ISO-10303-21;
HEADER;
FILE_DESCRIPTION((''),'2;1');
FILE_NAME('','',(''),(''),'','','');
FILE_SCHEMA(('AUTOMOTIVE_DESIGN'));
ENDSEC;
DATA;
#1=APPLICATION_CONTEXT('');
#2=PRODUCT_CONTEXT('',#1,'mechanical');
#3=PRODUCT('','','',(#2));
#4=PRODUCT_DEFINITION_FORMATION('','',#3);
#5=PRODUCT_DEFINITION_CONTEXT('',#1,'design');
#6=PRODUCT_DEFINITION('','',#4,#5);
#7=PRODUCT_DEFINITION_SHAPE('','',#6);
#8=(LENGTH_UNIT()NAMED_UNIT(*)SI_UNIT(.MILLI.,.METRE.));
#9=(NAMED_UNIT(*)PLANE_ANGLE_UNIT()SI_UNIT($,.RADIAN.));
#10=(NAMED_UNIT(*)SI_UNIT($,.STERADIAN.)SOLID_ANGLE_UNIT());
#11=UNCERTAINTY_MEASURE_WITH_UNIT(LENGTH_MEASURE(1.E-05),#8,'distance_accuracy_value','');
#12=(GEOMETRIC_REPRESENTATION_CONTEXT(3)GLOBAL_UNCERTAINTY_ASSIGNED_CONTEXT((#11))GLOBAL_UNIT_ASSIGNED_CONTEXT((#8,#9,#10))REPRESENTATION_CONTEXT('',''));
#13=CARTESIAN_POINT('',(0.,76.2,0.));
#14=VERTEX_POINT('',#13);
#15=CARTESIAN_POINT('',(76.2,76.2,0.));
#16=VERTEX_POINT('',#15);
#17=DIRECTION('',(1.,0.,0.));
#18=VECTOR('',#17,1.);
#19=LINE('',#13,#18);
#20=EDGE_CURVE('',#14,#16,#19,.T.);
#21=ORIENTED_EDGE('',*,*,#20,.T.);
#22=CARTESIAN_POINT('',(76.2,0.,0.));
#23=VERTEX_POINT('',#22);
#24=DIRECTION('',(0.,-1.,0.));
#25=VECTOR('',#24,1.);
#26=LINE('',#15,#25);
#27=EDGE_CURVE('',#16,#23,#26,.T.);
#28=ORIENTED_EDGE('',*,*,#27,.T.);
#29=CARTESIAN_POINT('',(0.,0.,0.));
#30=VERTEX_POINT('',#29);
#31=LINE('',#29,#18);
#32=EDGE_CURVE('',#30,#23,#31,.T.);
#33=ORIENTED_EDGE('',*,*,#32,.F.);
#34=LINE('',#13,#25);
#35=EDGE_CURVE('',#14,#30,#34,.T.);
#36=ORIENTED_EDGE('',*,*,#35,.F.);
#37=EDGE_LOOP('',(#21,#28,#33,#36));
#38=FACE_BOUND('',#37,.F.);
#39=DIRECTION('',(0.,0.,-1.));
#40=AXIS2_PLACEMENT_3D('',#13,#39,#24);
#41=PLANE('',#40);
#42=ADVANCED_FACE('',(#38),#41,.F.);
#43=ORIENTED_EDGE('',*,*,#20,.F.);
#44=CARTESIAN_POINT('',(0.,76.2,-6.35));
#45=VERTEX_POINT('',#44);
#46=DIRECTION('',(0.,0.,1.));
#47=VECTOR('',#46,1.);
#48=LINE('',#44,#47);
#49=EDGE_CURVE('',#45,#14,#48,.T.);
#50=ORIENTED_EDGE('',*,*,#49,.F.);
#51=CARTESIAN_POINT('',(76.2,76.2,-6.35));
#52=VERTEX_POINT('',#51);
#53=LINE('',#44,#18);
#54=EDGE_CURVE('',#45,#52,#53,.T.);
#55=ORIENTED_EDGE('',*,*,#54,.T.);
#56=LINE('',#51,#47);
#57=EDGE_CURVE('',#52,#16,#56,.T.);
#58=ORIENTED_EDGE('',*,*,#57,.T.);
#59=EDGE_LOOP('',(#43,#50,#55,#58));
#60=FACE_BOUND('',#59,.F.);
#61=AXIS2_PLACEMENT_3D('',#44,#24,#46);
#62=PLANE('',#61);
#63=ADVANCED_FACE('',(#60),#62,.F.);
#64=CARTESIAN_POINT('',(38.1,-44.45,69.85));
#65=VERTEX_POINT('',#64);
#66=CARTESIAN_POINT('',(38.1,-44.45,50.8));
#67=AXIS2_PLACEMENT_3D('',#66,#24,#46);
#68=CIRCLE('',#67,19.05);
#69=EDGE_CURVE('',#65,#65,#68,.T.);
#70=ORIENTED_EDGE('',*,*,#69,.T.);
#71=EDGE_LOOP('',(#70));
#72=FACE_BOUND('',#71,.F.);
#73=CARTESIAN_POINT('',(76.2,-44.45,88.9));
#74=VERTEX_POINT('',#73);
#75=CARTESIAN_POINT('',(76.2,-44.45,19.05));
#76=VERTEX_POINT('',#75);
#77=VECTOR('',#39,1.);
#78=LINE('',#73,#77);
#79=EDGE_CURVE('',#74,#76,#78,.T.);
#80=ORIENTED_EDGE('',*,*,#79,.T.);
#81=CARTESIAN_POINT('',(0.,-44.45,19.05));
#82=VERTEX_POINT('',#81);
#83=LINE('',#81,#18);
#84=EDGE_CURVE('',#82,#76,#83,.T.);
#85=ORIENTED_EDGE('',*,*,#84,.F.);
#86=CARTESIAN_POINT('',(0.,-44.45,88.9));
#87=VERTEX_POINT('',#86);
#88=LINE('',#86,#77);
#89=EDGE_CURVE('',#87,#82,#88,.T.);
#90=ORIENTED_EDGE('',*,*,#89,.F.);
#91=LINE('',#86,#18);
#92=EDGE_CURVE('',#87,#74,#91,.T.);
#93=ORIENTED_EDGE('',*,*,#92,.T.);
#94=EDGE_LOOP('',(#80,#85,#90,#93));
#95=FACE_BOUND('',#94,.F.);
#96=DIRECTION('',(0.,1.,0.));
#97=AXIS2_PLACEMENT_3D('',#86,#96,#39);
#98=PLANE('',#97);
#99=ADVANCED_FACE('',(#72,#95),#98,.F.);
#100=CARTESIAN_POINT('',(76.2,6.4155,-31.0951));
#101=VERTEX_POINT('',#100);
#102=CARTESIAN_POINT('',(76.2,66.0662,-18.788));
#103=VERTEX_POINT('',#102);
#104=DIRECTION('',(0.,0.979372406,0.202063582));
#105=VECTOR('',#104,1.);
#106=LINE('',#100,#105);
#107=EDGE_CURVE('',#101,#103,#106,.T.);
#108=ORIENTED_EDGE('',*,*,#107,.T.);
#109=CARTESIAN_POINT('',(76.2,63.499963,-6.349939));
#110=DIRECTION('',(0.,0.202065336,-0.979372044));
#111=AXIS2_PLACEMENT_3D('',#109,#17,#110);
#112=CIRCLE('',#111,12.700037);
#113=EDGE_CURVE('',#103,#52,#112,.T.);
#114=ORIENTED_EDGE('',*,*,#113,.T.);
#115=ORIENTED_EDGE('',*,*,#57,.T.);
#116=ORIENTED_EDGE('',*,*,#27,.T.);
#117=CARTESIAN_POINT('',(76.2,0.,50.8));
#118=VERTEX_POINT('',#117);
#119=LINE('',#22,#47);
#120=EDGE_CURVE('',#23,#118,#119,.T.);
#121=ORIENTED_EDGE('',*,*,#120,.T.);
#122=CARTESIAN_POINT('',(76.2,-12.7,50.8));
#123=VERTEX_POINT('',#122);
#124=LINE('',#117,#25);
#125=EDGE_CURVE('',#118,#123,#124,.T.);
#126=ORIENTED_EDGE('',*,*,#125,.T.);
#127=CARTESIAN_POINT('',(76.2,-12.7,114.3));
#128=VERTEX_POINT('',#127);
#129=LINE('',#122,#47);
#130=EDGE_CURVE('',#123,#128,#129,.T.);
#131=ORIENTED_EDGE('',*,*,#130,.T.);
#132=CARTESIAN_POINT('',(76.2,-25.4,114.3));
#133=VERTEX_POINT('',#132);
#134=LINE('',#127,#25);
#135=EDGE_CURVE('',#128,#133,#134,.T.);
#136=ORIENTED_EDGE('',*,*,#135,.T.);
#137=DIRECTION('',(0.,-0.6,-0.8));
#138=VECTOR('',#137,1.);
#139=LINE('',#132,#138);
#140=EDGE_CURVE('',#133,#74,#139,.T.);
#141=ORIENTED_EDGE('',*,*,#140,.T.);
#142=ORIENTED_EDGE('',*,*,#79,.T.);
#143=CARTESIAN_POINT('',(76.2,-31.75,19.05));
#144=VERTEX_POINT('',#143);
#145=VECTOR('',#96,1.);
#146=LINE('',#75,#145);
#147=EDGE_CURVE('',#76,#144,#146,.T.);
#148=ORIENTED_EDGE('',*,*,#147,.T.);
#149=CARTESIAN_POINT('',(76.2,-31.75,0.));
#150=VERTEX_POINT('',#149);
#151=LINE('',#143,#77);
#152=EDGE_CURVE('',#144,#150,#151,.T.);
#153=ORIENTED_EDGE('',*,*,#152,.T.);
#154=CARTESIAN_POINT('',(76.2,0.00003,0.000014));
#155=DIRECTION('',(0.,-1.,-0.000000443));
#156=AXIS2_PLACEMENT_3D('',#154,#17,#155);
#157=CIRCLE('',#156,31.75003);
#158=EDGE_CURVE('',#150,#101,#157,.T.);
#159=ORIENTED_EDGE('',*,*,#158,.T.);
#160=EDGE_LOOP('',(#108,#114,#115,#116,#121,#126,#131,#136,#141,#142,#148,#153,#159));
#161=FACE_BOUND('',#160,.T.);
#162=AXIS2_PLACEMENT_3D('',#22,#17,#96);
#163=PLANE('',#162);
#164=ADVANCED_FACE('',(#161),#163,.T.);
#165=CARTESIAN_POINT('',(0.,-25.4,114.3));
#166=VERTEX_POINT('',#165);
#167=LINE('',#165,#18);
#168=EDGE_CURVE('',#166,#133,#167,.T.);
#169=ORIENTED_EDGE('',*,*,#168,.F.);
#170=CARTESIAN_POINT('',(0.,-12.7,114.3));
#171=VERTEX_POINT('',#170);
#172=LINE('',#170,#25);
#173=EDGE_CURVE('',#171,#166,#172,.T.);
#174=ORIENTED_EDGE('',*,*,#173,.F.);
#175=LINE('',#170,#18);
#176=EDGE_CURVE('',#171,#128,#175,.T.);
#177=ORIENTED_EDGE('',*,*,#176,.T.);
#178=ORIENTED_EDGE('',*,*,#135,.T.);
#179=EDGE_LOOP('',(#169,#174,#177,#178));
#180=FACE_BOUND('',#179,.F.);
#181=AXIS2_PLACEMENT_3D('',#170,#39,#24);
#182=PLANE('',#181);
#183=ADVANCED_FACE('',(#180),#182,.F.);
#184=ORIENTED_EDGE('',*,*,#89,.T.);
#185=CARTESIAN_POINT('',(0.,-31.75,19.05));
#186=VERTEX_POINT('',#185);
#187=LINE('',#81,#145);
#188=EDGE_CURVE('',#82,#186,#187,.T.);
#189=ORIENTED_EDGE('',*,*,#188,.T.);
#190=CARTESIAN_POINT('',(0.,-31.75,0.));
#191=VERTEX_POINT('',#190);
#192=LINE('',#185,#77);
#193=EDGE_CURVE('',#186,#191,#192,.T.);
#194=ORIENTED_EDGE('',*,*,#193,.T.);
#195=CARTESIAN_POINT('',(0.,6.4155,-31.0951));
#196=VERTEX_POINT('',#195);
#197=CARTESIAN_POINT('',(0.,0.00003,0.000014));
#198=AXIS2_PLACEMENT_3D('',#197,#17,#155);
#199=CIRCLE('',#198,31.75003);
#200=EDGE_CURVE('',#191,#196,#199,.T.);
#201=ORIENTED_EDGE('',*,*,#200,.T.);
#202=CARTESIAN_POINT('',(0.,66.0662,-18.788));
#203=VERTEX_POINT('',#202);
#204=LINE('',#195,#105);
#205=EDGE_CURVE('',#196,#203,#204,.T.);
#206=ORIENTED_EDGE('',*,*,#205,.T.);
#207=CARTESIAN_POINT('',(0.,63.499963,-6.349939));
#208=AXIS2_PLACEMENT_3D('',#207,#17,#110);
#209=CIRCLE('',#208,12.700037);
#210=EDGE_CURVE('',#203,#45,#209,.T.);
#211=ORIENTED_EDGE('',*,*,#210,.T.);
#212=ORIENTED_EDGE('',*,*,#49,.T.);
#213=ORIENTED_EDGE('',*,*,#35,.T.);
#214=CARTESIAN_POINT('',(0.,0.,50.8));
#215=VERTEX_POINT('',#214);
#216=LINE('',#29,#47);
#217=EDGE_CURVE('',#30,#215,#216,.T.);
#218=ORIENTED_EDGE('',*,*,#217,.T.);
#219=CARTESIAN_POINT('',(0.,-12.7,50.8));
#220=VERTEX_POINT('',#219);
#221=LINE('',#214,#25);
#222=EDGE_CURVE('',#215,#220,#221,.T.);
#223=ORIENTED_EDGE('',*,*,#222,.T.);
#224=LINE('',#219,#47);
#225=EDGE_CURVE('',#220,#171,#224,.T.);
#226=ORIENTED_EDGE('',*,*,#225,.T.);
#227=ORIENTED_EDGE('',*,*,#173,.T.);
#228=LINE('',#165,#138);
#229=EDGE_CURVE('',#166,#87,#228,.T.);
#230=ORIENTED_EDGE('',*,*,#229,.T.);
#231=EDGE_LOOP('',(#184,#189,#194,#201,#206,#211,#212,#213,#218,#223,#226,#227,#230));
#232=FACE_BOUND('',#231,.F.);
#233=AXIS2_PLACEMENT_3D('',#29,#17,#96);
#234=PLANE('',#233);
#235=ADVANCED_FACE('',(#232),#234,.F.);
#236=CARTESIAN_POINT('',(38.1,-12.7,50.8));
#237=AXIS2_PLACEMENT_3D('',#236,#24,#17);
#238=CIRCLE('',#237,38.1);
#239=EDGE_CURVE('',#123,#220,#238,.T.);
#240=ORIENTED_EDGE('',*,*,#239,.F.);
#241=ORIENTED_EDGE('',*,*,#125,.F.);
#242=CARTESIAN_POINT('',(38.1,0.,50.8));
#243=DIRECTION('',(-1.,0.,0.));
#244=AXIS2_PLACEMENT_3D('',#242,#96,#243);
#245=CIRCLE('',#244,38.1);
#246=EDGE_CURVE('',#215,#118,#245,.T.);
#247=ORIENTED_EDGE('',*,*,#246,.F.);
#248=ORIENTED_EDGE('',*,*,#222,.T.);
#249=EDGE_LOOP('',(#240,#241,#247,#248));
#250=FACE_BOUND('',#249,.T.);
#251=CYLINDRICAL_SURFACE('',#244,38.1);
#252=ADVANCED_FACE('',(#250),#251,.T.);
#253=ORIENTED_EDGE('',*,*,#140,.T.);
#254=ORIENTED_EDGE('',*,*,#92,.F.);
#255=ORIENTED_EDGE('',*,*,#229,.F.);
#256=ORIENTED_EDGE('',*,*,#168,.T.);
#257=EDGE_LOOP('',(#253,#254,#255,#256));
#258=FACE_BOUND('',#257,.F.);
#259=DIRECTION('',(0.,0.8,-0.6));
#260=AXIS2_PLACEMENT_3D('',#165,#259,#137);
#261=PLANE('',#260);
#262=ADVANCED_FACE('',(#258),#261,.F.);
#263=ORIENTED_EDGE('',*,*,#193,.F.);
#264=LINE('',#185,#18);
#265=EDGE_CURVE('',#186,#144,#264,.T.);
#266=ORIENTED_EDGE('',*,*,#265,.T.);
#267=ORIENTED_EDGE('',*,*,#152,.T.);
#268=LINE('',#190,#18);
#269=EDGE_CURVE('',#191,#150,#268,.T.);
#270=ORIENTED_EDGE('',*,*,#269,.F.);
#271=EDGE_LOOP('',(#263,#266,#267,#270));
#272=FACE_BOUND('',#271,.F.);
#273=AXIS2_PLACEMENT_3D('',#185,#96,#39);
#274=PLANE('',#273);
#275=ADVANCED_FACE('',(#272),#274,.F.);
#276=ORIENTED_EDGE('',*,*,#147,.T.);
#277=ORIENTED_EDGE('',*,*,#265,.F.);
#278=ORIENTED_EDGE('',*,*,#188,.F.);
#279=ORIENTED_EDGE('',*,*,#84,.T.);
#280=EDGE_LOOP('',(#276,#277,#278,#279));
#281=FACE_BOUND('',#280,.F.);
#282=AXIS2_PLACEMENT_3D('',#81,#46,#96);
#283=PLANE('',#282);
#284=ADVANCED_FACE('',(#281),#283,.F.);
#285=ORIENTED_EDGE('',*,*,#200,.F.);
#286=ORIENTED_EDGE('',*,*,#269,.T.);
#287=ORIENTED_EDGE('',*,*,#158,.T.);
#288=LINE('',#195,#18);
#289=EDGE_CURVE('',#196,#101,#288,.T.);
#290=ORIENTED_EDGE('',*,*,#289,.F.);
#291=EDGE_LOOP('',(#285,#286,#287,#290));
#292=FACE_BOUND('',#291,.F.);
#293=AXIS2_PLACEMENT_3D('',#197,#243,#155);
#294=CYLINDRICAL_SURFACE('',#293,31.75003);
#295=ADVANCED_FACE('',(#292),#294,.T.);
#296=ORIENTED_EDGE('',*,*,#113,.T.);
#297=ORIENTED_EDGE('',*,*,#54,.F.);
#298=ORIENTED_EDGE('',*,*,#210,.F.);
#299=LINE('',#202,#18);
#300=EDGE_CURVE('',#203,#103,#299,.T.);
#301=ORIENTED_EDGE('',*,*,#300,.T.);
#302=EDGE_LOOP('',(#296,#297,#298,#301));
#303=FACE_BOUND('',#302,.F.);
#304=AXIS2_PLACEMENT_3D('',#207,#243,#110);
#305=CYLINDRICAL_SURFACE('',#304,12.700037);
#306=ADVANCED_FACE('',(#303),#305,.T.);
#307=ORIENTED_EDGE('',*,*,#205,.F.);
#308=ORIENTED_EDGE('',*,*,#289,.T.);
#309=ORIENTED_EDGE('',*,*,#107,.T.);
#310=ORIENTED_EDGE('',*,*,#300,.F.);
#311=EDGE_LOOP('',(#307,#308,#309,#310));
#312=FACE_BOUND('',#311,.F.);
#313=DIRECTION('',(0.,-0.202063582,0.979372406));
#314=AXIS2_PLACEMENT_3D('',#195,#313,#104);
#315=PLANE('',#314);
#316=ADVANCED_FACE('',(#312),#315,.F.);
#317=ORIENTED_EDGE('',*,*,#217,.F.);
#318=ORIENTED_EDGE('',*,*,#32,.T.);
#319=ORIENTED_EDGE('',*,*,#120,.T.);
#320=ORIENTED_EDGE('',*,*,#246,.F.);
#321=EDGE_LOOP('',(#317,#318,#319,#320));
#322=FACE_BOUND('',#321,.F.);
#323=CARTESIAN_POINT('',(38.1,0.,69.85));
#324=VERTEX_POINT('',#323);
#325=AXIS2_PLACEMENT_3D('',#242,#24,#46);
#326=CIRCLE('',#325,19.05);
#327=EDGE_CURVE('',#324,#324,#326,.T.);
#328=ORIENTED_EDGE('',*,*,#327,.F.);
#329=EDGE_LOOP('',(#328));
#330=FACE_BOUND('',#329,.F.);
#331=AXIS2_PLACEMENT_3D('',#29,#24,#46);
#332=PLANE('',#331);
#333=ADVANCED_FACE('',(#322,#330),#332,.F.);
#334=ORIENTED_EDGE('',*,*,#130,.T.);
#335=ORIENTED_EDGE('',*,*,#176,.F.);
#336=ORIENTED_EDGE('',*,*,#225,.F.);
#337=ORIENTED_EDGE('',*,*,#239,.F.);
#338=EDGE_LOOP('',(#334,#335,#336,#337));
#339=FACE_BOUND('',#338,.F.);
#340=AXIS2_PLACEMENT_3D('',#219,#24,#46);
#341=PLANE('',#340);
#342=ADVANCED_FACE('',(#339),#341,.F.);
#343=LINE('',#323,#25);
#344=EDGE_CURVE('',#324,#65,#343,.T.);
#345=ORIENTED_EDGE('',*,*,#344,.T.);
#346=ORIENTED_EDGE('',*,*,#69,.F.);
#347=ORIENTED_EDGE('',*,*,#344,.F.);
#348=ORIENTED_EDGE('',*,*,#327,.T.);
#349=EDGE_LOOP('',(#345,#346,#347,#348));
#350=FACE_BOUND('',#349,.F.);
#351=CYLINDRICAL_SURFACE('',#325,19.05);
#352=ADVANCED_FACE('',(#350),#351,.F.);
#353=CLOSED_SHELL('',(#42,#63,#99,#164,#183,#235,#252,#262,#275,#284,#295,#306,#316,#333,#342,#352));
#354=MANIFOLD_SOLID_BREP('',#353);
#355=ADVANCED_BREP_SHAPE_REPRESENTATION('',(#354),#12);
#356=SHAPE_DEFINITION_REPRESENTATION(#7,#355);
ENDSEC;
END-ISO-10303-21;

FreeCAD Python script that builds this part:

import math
import FreeCAD as App
import Part
import Sketcher
Q = App.Units.Quantity

doc = App.newDocument("Part")
body = doc.addObject("PartDesign::Body", "Body")

# Sketch on YZ plane
sketch1 = body.newObject("Sketcher::SketchObject", "Sketch")
sketch1.AttachmentSupport = (doc.getObject("YZ_Plane"), [""])
sketch1.MapMode = "FlatFace"
sketch1.addGeometry([
    Part.LineSegment(App.Vector(76.2, -6.35, 0), App.Vector(76.2, 0, 0)),  # 0
    Part.LineSegment(App.Vector(76.2, 0, 0), App.Vector(0, 0, 0)),  # 1
    Part.LineSegment(App.Vector(0, 0, 0), App.Vector(0, 50.8, 0)),  # 2
    Part.LineSegment(App.Vector(0, 50.8, 0), App.Vector(-12.7, 50.8, 0)),  # 3
    Part.LineSegment(App.Vector(-12.7, 50.8, 0), App.Vector(-12.7, 114.3, 0)),  # 4
    Part.LineSegment(App.Vector(-12.7, 114.3, 0), App.Vector(-25.4, 114.3, 0)),  # 5
    Part.LineSegment(App.Vector(-25.4, 114.3, 0), App.Vector(-44.45, 88.9, 0)),  # 6
    Part.LineSegment(App.Vector(-44.45, 88.9, 0), App.Vector(-44.45, 19.05, 0)),  # 7
    Part.LineSegment(App.Vector(-44.45, 19.05, 0), App.Vector(-31.75, 19.05, 0)),  # 8
    Part.LineSegment(App.Vector(-31.75, 19.05, 0), App.Vector(-31.75, 0, 0)),  # 9
    Part.ArcOfCircle(Part.Circle(App.Vector(0, 0, 0), App.Vector(0, 0, 1), 31.75), math.radians(180), math.radians(281.657615)),  # 10
    Part.LineSegment(App.Vector(6.4155, -31.0951, 0), App.Vector(66.0662, -18.788, 0)),  # 11
    Part.ArcOfCircle(Part.Circle(App.Vector(63.5, -6.35, 0), App.Vector(0, 0, 1), 12.69997), math.radians(-78.342348), math.radians(0)),  # 12
], False)
sketch1.addConstraint([
    Sketcher.Constraint("Coincident", 0, 2, 1, 1),
    Sketcher.Constraint("Coincident", 1, 2, 2, 1),
    Sketcher.Constraint("Coincident", 2, 2, 3, 1),
    Sketcher.Constraint("Coincident", 3, 2, 4, 1),
    Sketcher.Constraint("Coincident", 4, 2, 5, 1),
    Sketcher.Constraint("Coincident", 5, 2, 6, 1),
    Sketcher.Constraint("Coincident", 6, 2, 7, 1),
    Sketcher.Constraint("Coincident", 7, 2, 8, 1),
    Sketcher.Constraint("Coincident", 8, 2, 9, 1),
    Sketcher.Constraint("Tangent", 9, 2, 10, 1),
    Sketcher.Constraint("Tangent", 10, 2, 11, 1),
    Sketcher.Constraint("Tangent", 11, 2, 12, 1),
    Sketcher.Constraint("Tangent", 12, 2, 0, 1),
    Sketcher.Constraint("Vertical", 0),
    Sketcher.Constraint("Horizontal", 1),
    Sketcher.Constraint("Vertical", 2),
    Sketcher.Constraint("Horizontal", 3),
    Sketcher.Constraint("Vertical", 4),
    Sketcher.Constraint("Horizontal", 5),
    Sketcher.Constraint("Vertical", 7),
    Sketcher.Constraint("Horizontal", 8),
    Sketcher.Constraint("Vertical", 9),
    Sketcher.Constraint("Coincident", 10, 3, -1, 1),
    Sketcher.Constraint("Coincident", 1, 2, -1, 1),
    Sketcher.Constraint("Equal", 3, 5),
    Sketcher.Constraint("Equal", 5, 8),
    Sketcher.Constraint("Radius", 12, Q("0.5 in")),
    Sketcher.Constraint("DistanceX", 1, 2, 1, 1, Q("3 in")),
    Sketcher.Constraint("DistanceY", 2, 1, 2, 2, Q("2 in")),
    Sketcher.Constraint("Radius", 10, Q("1.25 in")),
    Sketcher.Constraint("DistanceX", 3, 2, 3, 1, Q("0.5 in")),
    Sketcher.Constraint("DistanceY", 0, 1, 0, 2, Q("0.25 in")),
    Sketcher.Constraint("DistanceY", 7, 2, 7, 1, Q("2.75 in")),
    Sketcher.Constraint("DistanceY", 9, 2, 9, 1, Q("0.75 in")),
    Sketcher.Constraint("DistanceY", -1, 1, 4, 2, Q("4.5 in")),
])
pad1 = body.newObject("PartDesign::Pad", "Pad")
pad1.Profile = sketch1
pad1.Length = Q("3 in")

# Sketch on XZ plane
sketch2 = body.newObject("Sketcher::SketchObject", "Sketch001")
sketch2.AttachmentSupport = (doc.getObject("XZ_Plane"), [""])
sketch2.MapMode = "FlatFace"
sketch2.addGeometry([
    Part.LineSegment(App.Vector(76.2, 50.8, 0), App.Vector(0, 50.8, 0)),
    Part.ArcOfCircle(Part.Circle(App.Vector(38.1, 50.8, 0), App.Vector(0, 0, 1), 38.1), math.radians(0), math.radians(180)),
], False)
sketch2.addConstraint([
    Sketcher.Constraint("Coincident", 0, 1, 1, 1),
    Sketcher.Constraint("Coincident", 1, 2, 0, 2),
    Sketcher.Constraint("Horizontal", 0),
    Sketcher.Constraint("PointOnObject", 1, 2, -2),
    Sketcher.Constraint("Horizontal", 1, 3, 0, 1),
    Sketcher.Constraint("Radius", 1, Q("1.5 in")),
    Sketcher.Constraint("DistanceY", -1, 1, 1, 3, Q("2 in")),
])
pad2 = body.newObject("PartDesign::Pad", "Pad001")
pad2.Profile = sketch2
pad2.Length = Q("0.5 in")

# Sketch on XZ plane
sketch3 = body.newObject("Sketcher::SketchObject", "Sketch002")
sketch3.AttachmentSupport = (doc.getObject("XZ_Plane"), [""])
sketch3.MapMode = "FlatFace"
sketch3.addGeometry(Part.Circle(App.Vector(38.1, 50.8, 0), App.Vector(0, 0, 1), 19.05), False)
sketch3.addConstraint([
    Sketcher.Constraint("Diameter", 0, Q("1.5 in")),
    Sketcher.Constraint("DistanceY", -1, 1, 0, 3, Q("2 in")),
    Sketcher.Constraint("DistanceX", -1, 1, 0, 3, Q("1.5 in")),
])
doc.recompute()
hole = body.newObject("PartDesign::Hole", "Hole")
hole.Profile = sketch3
hole.ThreadType = "None"
hole.Diameter = Q("1.5 in")
hole.DepthType = "ThroughAll"
hole.Reversed = True

doc.recompute()
